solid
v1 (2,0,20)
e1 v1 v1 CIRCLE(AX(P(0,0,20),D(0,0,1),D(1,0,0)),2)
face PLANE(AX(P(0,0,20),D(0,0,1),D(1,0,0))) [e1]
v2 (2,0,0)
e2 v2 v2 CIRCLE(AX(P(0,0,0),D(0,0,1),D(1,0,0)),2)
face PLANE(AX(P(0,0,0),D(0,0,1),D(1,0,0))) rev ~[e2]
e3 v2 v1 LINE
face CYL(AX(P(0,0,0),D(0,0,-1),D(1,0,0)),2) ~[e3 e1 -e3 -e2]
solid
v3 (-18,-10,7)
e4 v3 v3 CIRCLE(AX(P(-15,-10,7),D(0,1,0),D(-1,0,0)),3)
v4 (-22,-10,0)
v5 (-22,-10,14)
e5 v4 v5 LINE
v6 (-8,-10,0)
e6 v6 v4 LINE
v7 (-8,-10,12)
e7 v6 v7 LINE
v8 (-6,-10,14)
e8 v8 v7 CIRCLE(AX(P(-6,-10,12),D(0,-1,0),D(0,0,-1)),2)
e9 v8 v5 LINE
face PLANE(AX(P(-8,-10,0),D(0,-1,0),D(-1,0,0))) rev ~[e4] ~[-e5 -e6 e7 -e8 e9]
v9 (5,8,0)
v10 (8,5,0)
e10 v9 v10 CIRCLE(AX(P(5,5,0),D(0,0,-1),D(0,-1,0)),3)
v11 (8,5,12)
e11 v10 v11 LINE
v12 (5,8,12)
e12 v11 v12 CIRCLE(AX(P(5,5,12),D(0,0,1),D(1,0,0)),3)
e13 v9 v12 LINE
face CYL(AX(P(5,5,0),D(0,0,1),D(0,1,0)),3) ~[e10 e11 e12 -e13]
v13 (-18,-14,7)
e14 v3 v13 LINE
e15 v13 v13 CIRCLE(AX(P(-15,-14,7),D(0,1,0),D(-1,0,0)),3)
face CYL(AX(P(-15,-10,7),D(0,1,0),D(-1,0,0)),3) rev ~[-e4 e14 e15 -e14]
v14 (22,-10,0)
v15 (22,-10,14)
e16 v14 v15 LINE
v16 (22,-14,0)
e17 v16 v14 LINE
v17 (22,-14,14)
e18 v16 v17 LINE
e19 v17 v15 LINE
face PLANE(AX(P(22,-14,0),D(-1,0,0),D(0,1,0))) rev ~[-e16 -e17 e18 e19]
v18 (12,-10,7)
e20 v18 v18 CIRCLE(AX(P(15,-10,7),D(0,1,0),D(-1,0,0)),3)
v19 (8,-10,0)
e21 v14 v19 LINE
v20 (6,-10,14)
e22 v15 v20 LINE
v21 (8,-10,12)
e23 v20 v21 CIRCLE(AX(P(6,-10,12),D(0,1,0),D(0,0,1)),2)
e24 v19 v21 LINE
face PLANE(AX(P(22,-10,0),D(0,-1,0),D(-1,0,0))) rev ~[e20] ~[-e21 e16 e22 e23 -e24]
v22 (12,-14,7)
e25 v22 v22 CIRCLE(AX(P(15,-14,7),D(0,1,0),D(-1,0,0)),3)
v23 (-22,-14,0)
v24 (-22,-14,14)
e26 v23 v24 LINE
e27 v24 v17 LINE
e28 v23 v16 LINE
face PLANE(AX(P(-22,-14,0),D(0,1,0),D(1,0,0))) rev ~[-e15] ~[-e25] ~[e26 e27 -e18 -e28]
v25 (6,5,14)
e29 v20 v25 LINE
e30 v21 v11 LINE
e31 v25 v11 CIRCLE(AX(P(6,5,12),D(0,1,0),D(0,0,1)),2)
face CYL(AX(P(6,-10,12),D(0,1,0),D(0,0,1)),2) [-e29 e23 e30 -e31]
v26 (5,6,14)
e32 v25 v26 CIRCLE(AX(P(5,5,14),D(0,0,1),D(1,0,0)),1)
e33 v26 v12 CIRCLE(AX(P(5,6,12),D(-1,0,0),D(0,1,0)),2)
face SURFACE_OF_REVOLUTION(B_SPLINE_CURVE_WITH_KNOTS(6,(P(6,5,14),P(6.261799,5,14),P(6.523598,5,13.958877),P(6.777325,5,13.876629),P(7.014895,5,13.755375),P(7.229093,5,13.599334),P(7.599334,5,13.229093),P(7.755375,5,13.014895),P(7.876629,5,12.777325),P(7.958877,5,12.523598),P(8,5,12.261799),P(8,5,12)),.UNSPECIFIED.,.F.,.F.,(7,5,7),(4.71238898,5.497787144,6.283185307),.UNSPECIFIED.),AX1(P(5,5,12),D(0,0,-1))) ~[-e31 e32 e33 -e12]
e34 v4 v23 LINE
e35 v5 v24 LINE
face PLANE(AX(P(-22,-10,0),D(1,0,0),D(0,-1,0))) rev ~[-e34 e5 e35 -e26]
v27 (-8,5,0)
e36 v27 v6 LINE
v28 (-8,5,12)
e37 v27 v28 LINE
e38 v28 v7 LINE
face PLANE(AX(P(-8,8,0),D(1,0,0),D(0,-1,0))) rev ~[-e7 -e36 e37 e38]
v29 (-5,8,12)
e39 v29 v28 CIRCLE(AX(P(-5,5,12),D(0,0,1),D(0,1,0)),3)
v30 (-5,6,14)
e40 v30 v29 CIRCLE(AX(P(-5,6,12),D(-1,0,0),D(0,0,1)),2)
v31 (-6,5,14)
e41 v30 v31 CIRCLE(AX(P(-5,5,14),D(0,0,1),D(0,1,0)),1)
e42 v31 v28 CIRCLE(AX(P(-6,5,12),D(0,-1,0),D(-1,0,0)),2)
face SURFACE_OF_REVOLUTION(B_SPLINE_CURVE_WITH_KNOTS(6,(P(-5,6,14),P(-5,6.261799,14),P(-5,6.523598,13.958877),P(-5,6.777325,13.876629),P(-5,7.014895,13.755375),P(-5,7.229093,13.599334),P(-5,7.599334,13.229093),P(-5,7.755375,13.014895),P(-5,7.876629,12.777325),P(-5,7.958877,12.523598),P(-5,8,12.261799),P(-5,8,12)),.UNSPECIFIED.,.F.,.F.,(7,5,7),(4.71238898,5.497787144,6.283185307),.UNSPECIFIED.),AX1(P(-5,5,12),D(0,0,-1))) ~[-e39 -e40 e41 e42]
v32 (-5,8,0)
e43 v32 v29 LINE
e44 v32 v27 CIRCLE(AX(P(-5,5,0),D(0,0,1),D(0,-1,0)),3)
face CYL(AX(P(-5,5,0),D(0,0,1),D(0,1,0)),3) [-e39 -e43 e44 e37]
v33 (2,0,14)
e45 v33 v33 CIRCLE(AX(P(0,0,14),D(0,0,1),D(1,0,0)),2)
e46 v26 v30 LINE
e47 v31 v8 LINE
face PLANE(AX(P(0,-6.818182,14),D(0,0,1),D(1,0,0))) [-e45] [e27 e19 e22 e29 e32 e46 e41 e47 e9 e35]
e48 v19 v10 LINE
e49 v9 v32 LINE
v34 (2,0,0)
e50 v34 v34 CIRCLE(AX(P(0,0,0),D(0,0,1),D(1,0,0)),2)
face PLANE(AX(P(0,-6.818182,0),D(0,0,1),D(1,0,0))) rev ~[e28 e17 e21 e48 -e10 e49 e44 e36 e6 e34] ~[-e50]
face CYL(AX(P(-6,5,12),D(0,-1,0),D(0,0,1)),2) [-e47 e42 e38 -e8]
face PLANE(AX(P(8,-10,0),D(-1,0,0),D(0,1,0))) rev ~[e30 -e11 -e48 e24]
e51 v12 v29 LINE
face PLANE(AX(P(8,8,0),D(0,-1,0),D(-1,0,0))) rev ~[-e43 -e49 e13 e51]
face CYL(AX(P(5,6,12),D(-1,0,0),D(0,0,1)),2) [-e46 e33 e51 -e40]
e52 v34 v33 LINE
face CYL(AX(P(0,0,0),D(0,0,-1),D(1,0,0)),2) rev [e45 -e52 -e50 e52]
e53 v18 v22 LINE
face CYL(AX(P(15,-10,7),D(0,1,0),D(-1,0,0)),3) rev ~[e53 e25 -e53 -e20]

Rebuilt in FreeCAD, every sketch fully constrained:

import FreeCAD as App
import Part
import Sketcher
from FreeCAD import Vector


def edges_at(feature, points):
    """Names of the edges that pass closest to the given points."""
    edges = feature.Shape.Edges
    near = lambda p: min(range(len(edges)), key=lambda i: edges[i].distToShape(Part.Vertex(*p))[0])
    return sorted({f"Edge{near(p) + 1}" for p in points})


def add_polygon(sketch, points):
    """Adds a closed chain of lines whose ends are joined by coincident constraints."""
    first, n = sketch.GeometryCount, len(points)
    for a, b in zip(points, points[1:] + points[:1]):
        sketch.addGeometry(Part.LineSegment(App.Vector(*a, 0), App.Vector(*b, 0)), False)
    for i in range(n):
        sketch.addConstraint(Sketcher.Constraint("Coincident", first + i, 2, first + (i + 1) % n, 1))

doc = App.newDocument("Part")
body = doc.addObject("PartDesign::Body", "Body")

# Sketch on XY plane
sketch1 = body.newObject("Sketcher::SketchObject", "Sketch")
sketch1.AttachmentSupport = (doc.getObject("XY_Plane"), [""])
sketch1.MapMode = "FlatFace"
sketch1.addGeometry(Part.Circle(Vector(0, 0, 0), Vector(0, 0, 1), 2), False)
sketch1.addConstraint(Sketcher.Constraint("Coincident", 0, 3, -1, 1))
sketch1.addConstraint(Sketcher.Constraint("Diameter", 0, 4.0))
pad1 = body.newObject("PartDesign::Pad", "Pad")
pad1.Profile = sketch1
pad1.Length = 20
body2 = doc.addObject("PartDesign::Body", "Body001")

# Sketch on XY plane
sketch2 = body2.newObject("Sketcher::SketchObject", "Sketch001")
sketch2.AttachmentSupport = (doc.getObject("XY_Plane001"), [""])
sketch2.MapMode = "FlatFace"
add_polygon(sketch2, [(8, 8), (-8, 8), (-8, -10), (-22, -10), (-22, -14), (22, -14), (22, -10), (8, -10)])  # lines 0-7
sketch2.addGeometry(Part.Circle(Vector(0, 0, 0), Vector(0, 0, 1), 2), False)  # 8
sketch2.addConstraint(Sketcher.Constraint("Horizontal", 0))
sketch2.addConstraint(Sketcher.Constraint("Vertical", 1))
sketch2.addConstraint(Sketcher.Constraint("Horizontal", 2))
sketch2.addConstraint(Sketcher.Constraint("Vertical", 3))
sketch2.addConstraint(Sketcher.Constraint("Horizontal", 4))
sketch2.addConstraint(Sketcher.Constraint("Vertical", 5))
sketch2.addConstraint(Sketcher.Constraint("Horizontal", 6))
sketch2.addConstraint(Sketcher.Constraint("Vertical", 7))
sketch2.addConstraint(Sketcher.Constraint("Coincident", 8, 3, -1, 1))
sketch2.addConstraint(Sketcher.Constraint("Symmetric", 2, 2, 5, 2, -2))
sketch2.addConstraint(Sketcher.Constraint("Equal", 2, 6))
sketch2.addConstraint(Sketcher.Constraint("Diameter", 8, 4.0))
sketch2.addConstraint(Sketcher.Constraint("DistanceX", 0, 2, 0, 1, 16.0))
sketch2.addConstraint(Sketcher.Constraint("DistanceX", 2, 2, 2, 1, 14.0))
sketch2.addConstraint(Sketcher.Constraint("DistanceY", 1, 2, 1, 1, 18.0))
sketch2.addConstraint(Sketcher.Constraint("DistanceY", 3, 2, 3, 1, 4.0))
sketch2.addConstraint(Sketcher.Constraint("DistanceY", -1, 1, 0, 2, 8.0))
pad2 = body2.newObject("PartDesign::Pad", "Pad001")
pad2.Profile = sketch2
pad2.Length = 14

# Sketch on XZ plane
sketch3 = body2.newObject("Sketcher::SketchObject", "Sketch002")
sketch3.AttachmentSupport = (doc.getObject("XZ_Plane001"), [""])
sketch3.MapMode = "FlatFace"
sketch3.AttachmentOffset = App.Placement(Vector(0, 0, 10), App.Rotation())
sketch3.addGeometry(Part.Circle(Vector(-15, 7, 0), Vector(0, 0, 1), 3), False)
sketch3.addConstraint(Sketcher.Constraint("Diameter", 0, 6.0))
sketch3.addConstraint(Sketcher.Constraint("DistanceX", 0, 3, -1, 1, 15.0))
sketch3.addConstraint(Sketcher.Constraint("DistanceY", -1, 1, 0, 3, 7.0))
pocket1 = body2.newObject("PartDesign::Pocket", "Pocket")
pocket1.Profile = sketch3
pocket1.Type = "ThroughAll"
pocket1.Reversed = True

# Sketch on XZ plane
sketch4 = body2.newObject("Sketcher::SketchObject", "Sketch003")
sketch4.AttachmentSupport = (doc.getObject("XZ_Plane001"), [""])
sketch4.MapMode = "FlatFace"
sketch4.AttachmentOffset = App.Placement(Vector(0, 0, 10), App.Rotation())
sketch4.addGeometry(Part.Circle(Vector(15, 7, 0), Vector(0, 0, 1), 3), False)
sketch4.addConstraint(Sketcher.Constraint("Diameter", 0, 6.0))
sketch4.addConstraint(Sketcher.Constraint("DistanceX", -1, 1, 0, 3, 15.0))
sketch4.addConstraint(Sketcher.Constraint("DistanceY", -1, 1, 0, 3, 7.0))
pocket2 = body2.newObject("PartDesign::Pocket", "Pocket001")
pocket2.Profile = sketch4
pocket2.Type = "ThroughAll"
pocket2.Reversed = True
doc.recompute()

fillet = body2.newObject("PartDesign::Fillet", "Fillet")
fillet.Base = (pocket2, edges_at(pocket2, [(-8, 8, 7)]))
fillet.Radius = 3
doc.recompute()

fillet2 = body2.newObject("PartDesign::Fillet", "Fillet001")
fillet2.Base = (fillet, edges_at(fillet, [(8, 8, 7)]))
fillet2.Radius = 3
doc.recompute()

fillet3 = body2.newObject("PartDesign::Fillet", "Fillet002")
fillet3.Base = (fillet2, edges_at(fillet2, [(-8, -2.5, 14)]))
fillet3.Radius = 2

doc.recompute()
